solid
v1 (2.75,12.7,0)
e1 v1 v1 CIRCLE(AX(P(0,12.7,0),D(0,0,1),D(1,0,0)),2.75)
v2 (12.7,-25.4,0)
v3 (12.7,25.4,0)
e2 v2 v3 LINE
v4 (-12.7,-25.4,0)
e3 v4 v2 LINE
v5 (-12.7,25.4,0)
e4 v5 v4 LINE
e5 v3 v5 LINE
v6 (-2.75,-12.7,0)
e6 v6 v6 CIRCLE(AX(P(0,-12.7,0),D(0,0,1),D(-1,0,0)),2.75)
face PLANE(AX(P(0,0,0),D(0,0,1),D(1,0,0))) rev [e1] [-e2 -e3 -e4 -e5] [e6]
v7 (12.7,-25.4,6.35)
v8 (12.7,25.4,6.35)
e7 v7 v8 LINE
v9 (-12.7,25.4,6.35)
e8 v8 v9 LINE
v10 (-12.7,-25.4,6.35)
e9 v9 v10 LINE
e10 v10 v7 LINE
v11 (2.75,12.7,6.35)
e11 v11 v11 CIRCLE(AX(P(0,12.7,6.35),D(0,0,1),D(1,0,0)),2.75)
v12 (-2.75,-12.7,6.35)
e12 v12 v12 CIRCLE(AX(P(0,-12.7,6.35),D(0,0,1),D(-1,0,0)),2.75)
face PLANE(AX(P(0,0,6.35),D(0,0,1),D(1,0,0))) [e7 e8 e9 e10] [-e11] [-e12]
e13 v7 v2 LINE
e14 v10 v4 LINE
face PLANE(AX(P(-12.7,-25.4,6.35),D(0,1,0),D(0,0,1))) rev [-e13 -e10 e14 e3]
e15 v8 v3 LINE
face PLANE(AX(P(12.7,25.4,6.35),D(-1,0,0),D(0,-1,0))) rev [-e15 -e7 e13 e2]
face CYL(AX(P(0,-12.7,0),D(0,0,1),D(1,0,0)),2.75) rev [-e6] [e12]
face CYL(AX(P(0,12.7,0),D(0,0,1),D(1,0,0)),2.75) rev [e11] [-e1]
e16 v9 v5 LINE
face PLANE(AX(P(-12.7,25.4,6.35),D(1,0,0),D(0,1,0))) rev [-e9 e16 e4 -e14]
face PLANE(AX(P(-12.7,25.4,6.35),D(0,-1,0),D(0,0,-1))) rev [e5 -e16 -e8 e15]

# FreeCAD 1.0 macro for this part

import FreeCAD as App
import Part
import Sketcher
Q = App.Units.Quantity


def add_polygon(sketch, points):
    """Adds a closed chain of lines whose ends are joined by coincident constraints."""
    first, n = sketch.GeometryCount, len(points)
    for a, b in zip(points, points[1:] + points[:1]):
        sketch.addGeometry(Part.LineSegment(App.Vector(*a, 0), App.Vector(*b, 0)), False)
    for i in range(n):
        sketch.addConstraint(Sketcher.Constraint("Coincident", first + i, 2, first + (i + 1) % n, 1))

doc = App.newDocument("Part")
body = doc.addObject("PartDesign::Body", "Body")

# Sketch on XY plane
sketch1 = body.newObject("Sketcher::SketchObject", "Sketch")
sketch1.AttachmentSupport = (doc.getObject("XY_Plane"), [""])
sketch1.MapMode = "FlatFace"
add_polygon(sketch1, [(-13, 25), (-13, -25), (13, -25), (13, 25)])  # lines 0-3
sketch1.addConstraint(Sketcher.Constraint("Vertical", 0))
sketch1.addConstraint(Sketcher.Constraint("Horizontal", 1))
sketch1.addConstraint(Sketcher.Constraint("Vertical", 2))
sketch1.addConstraint(Sketcher.Constraint("Horizontal", 3))
sketch1.addConstraint(Sketcher.Constraint("Symmetric", 0, 2, 2, 2, -1, 1))
sketch1.addConstraint(Sketcher.Constraint("DistanceX", 1, 1, 1, 2, Q("1 in")))
sketch1.addConstraint(Sketcher.Constraint("DistanceY", 0, 2, 0, 1, Q("2 in")))
pad1 = body.newObject("PartDesign::Pad", "Pad")
pad1.Profile = sketch1
pad1.Length = Q("0.25 in")

# Sketch on XY plane
sketch2 = body.newObject("Sketcher::SketchObject", "Sketch001")
sketch2.AttachmentSupport = (doc.getObject("XY_Plane"), [""])
sketch2.MapMode = "FlatFace"
sketch2.AttachmentOffset = App.Placement(App.Vector(0, 0, 0.25 * 25.4), App.Rotation())
sketch2.addGeometry(Part.Circle(App.Vector(0, 12.7, 0), App.Vector(0, 0, 1), 2.8), False)
sketch2.addGeometry(Part.Circle(App.Vector(0, -12.7, 0), App.Vector(0, 0, 1), 2.8), False)
sketch2.addConstraint(Sketcher.Constraint("Equal", 0, 1))
sketch2.addConstraint(Sketcher.Constraint("Symmetric", 0, 3, 1, 3, -1, 1))
sketch2.addConstraint(Sketcher.Constraint("PointOnObject", 0, 3, -2))
sketch2.addConstraint(Sketcher.Constraint("DistanceY", 1, 3, 0, 3, Q("1 in")))
sketch2.addConstraint(Sketcher.Constraint("Diameter", 0, 5.5))
pocket1 = body.newObject("PartDesign::Pocket", "Pocket")
pocket1.Profile = sketch2
pocket1.Length = Q("0.25 in")

doc.recompute()
